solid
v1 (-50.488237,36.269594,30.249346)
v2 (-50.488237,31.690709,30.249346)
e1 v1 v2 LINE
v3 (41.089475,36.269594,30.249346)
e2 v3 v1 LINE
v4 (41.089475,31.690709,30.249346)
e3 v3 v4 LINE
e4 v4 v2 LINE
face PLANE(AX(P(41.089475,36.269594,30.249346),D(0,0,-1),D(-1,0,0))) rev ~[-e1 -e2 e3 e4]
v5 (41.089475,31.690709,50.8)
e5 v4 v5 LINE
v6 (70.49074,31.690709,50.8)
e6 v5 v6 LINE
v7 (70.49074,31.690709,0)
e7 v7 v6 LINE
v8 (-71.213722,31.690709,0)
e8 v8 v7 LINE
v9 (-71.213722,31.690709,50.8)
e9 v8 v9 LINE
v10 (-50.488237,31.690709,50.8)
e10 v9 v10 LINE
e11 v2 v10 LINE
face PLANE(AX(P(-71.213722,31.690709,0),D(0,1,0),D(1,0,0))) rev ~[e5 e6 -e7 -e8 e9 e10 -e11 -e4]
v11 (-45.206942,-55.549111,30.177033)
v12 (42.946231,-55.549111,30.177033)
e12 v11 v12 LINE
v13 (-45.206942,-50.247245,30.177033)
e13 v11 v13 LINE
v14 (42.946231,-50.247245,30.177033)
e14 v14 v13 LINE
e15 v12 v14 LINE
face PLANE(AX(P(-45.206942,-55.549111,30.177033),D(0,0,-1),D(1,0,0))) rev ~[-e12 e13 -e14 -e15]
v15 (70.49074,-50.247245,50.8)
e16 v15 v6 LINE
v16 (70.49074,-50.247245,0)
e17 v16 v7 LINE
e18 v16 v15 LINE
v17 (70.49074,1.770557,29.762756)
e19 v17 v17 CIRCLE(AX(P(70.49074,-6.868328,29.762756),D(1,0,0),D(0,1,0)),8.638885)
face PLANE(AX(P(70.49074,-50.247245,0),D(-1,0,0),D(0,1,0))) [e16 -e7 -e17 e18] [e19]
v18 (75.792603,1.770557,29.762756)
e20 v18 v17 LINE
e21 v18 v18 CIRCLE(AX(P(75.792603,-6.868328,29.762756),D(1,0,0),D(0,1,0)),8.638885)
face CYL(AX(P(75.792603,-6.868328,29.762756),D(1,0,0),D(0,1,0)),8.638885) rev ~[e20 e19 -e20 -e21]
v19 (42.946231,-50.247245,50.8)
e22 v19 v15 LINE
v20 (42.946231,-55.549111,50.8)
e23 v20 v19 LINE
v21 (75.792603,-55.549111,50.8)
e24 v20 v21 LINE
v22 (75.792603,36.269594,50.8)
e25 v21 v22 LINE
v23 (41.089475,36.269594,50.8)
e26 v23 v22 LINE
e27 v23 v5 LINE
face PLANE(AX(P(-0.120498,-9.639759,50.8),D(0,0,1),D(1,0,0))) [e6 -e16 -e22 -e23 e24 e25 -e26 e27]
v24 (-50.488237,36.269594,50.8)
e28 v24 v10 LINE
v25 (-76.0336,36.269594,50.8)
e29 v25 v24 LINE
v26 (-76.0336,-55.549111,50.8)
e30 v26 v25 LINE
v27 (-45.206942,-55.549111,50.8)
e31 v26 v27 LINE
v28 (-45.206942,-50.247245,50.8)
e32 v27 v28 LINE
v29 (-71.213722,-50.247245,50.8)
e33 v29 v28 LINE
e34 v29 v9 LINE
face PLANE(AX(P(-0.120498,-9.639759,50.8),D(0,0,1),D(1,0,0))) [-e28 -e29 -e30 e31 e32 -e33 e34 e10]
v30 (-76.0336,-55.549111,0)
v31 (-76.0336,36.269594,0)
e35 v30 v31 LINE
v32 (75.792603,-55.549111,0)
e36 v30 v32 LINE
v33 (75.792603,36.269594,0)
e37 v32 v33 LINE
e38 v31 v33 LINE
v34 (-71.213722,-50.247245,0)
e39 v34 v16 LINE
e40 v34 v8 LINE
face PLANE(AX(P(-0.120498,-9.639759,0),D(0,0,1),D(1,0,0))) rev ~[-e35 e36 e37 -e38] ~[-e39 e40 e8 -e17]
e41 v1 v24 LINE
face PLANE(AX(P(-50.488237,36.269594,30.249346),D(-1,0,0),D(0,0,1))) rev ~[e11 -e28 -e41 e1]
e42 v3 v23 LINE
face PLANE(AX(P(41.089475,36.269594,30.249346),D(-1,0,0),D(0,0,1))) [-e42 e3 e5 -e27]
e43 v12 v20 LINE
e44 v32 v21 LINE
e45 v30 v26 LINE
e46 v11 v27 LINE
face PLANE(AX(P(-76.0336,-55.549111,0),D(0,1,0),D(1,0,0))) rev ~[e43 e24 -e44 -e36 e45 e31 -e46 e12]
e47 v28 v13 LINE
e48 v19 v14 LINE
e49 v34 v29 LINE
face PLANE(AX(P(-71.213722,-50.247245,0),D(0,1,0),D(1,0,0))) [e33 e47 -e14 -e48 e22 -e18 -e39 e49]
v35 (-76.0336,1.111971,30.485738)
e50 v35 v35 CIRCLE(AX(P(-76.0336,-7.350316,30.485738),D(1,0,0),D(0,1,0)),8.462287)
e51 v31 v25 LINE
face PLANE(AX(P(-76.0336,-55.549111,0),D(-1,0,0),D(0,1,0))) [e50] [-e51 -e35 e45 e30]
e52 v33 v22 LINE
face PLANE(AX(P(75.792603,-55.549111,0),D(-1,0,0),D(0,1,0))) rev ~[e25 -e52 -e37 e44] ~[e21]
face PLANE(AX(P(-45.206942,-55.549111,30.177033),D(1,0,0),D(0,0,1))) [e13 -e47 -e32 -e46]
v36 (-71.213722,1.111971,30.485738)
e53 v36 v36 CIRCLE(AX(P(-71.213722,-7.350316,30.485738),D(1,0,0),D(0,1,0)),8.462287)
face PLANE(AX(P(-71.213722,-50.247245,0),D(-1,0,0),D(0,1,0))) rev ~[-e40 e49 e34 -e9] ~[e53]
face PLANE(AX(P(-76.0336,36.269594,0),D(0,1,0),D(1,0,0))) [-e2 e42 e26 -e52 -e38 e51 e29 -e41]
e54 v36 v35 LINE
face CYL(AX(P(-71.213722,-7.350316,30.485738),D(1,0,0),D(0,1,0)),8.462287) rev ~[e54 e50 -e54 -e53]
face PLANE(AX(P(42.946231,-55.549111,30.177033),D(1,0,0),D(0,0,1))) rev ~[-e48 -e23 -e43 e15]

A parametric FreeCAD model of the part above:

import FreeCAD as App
import Part
import Sketcher
Q = App.Units.Quantity

doc = App.newDocument("Part")
params = doc.addObject("Spreadsheet::Sheet", "Params")
for row, (alias, value) in enumerate([
    ("pad1_length", "2 in"),
    ("pocket1_length", "1 in"),
    ("pocket2_length", "1 in"),
    ("pocket3_length", "1 in"),
    ("pocket4_length", "1 in"),
], start=1):
    params.set(f"A{row}", alias)
    params.set(f"B{row}", "=" + value)
    params.setAlias(f"B{row}", alias)

body = doc.addObject("PartDesign::Body", "Body")

sketch1 = body.newObject("Sketcher::SketchObject", "Sketch")
sketch1.AttachmentSupport = (doc.getObject("XY_Plane"), [""])
sketch1.MapMode = "FlatFace"
sketch1.addGeometry(Part.LineSegment(App.Vector(-76, 36, 0), App.Vector(-76, -56, 0)), False)
sketch1.addGeometry(Part.LineSegment(App.Vector(-76, -56, 0), App.Vector(76, -56, 0)), False)
sketch1.addGeometry(Part.LineSegment(App.Vector(76, -56, 0), App.Vector(76, 36, 0)), False)
sketch1.addGeometry(Part.LineSegment(App.Vector(76, 36, 0), App.Vector(-76, 36, 0)), False)
sketch1.addGeometry(Part.LineSegment(App.Vector(70, -50, 0), App.Vector(-71, -50, 0)), False)
sketch1.addGeometry(Part.LineSegment(App.Vector(-71, -50, 0), App.Vector(-71, 32, 0)), False)
sketch1.addGeometry(Part.LineSegment(App.Vector(-71, 32, 0), App.Vector(70, 32, 0)), False)
sketch1.addGeometry(Part.LineSegment(App.Vector(70, 32, 0), App.Vector(70, -50, 0)), False)
sketch1.addConstraint(Sketcher.Constraint("Coincident", 0, 2, 1, 1))
sketch1.addConstraint(Sketcher.Constraint("Coincident", 1, 2, 2, 1))
sketch1.addConstraint(Sketcher.Constraint("Coincident", 2, 2, 3, 1))
sketch1.addConstraint(Sketcher.Constraint("Coincident", 3, 2, 0, 1))
sketch1.addConstraint(Sketcher.Constraint("Coincident", 4, 2, 5, 1))
sketch1.addConstraint(Sketcher.Constraint("Coincident", 5, 2, 6, 1))
sketch1.addConstraint(Sketcher.Constraint("Coincident", 6, 2, 7, 1))
sketch1.addConstraint(Sketcher.Constraint("Coincident", 7, 2, 4, 1))
sketch1.addConstraint(Sketcher.Constraint("Vertical", 0))
sketch1.addConstraint(Sketcher.Constraint("Horizontal", 1))
sketch1.addConstraint(Sketcher.Constraint("Vertical", 2))
sketch1.addConstraint(Sketcher.Constraint("Horizontal", 3))
sketch1.addConstraint(Sketcher.Constraint("Horizontal", 4))
sketch1.addConstraint(Sketcher.Constraint("Vertical", 5))
sketch1.addConstraint(Sketcher.Constraint("Horizontal", 6))
sketch1.addConstraint(Sketcher.Constraint("Vertical", 7))
sketch1.addConstraint(Sketcher.Constraint("DistanceX", 0, 2, -1, 1, Q("76.0336 mm")))
sketch1.addConstraint(Sketcher.Constraint("DistanceX", 1, 1, 1, 2, Q("151.826203 mm")))
sketch1.addConstraint(Sketcher.Constraint("DistanceX", 4, 2, 4, 1, Q("141.704462 mm")))
sketch1.addConstraint(Sketcher.Constraint("DistanceY", 0, 2, 0, 1, Q("91.818705 mm")))
sketch1.addConstraint(Sketcher.Constraint("DistanceY", 5, 1, 5, 2, Q("81.937954 mm")))
sketch1.addConstraint(Sketcher.Constraint("DistanceY", 0, 2, -1, 1, Q("55.549111 mm")))
sketch1.addConstraint(Sketcher.Constraint("DistanceY", -1, 1, 5, 2, Q("31.690709 mm")))
sketch1.addConstraint(Sketcher.Constraint("DistanceX", -1, 1, 6, 2, Q("70.49074 mm")))
pad1 = body.newObject("PartDesign::Pad", "Pad")
pad1.Profile = sketch1
pad1.setExpression("Length", "Params.pad1_length")

sketch2 = body.newObject("Sketcher::SketchObject", "Sketch001")
sketch2.AttachmentSupport = (doc.getObject("XZ_Plane"), [""])
sketch2.MapMode = "FlatFace"
sketch2.AttachmentOffset = App.Placement(App.Vector(0, 0, 55.549111), App.Rotation())
sketch2.addGeometry(Part.LineSegment(App.Vector(-45, 51, 0), App.Vector(-45, 30, 0)), False)
sketch2.addGeometry(Part.LineSegment(App.Vector(-45, 30, 0), App.Vector(43, 30, 0)), False)
sketch2.addGeometry(Part.LineSegment(App.Vector(43, 30, 0), App.Vector(43, 51, 0)), False)
sketch2.addGeometry(Part.LineSegment(App.Vector(43, 51, 0), App.Vector(-45, 51, 0)), False)
sketch2.addConstraint(Sketcher.Constraint("Coincident", 0, 2, 1, 1))
sketch2.addConstraint(Sketcher.Constraint("Coincident", 1, 2, 2, 1))
sketch2.addConstraint(Sketcher.Constraint("Coincident", 2, 2, 3, 1))
sketch2.addConstraint(Sketcher.Constraint("Coincident", 3, 2, 0, 1))
sketch2.addConstraint(Sketcher.Constraint("Vertical", 0))
sketch2.addConstraint(Sketcher.Constraint("Horizontal", 1))
sketch2.addConstraint(Sketcher.Constraint("Vertical", 2))
sketch2.addConstraint(Sketcher.Constraint("Horizontal", 3))
sketch2.addConstraint(Sketcher.Constraint("DistanceY", -1, 1, 2, 2, Q("2 in")))
sketch2.addConstraint(Sketcher.Constraint("DistanceX", 1, 1, 1, 2, Q("88.153172 mm")))
sketch2.addConstraint(Sketcher.Constraint("DistanceY", 0, 2, 0, 1, Q("20.622967 mm")))
sketch2.addConstraint(Sketcher.Constraint("DistanceX", 0, 2, -1, 1, Q("45.206942 mm")))
pocket1 = body.newObject("PartDesign::Pocket", "Pocket")
pocket1.Profile = sketch2
pocket1.setExpression("Length", "Params.pocket1_length")

sketch3 = body.newObject("Sketcher::SketchObject", "Sketch002")
sketch3.AttachmentSupport = (doc.getObject("YZ_Plane"), [""])
sketch3.MapMode = "FlatFace"
sketch3.AttachmentOffset = App.Placement(App.Vector(0, 0, 75.792603), App.Rotation())
sketch3.addGeometry(Part.Circle(App.Vector(-7, 30, 0), App.Vector(0, 0, 1), 9), False)
sketch3.addConstraint(Sketcher.Constraint("Diameter", 0, Q("17.277771 mm")))
sketch3.addConstraint(Sketcher.Constraint("DistanceX", 0, 3, -1, 1, Q("6.868328 mm")))
sketch3.addConstraint(Sketcher.Constraint("DistanceY", -1, 1, 0, 3, Q("29.762756 mm")))
pocket2 = body.newObject("PartDesign::Pocket", "Pocket001")
pocket2.Profile = sketch3
pocket2.setExpression("Length", "Params.pocket2_length")

sketch4 = body.newObject("Sketcher::SketchObject", "Sketch003")
sketch4.AttachmentSupport = (doc.getObject("YZ_Plane"), [""])
sketch4.MapMode = "FlatFace"
sketch4.AttachmentOffset = App.Placement(App.Vector(0, 0, -71.213722), App.Rotation())
sketch4.addGeometry(Part.Circle(App.Vector(-7, 30, 0), App.Vector(0, 0, 1), 8), False)
sketch4.addConstraint(Sketcher.Constraint("Diameter", 0, Q("16.924574 mm")))
sketch4.addConstraint(Sketcher.Constraint("DistanceY", -1, 1, 0, 3, Q("30.485738 mm")))
sketch4.addConstraint(Sketcher.Constraint("DistanceX", 0, 3, -1, 1, Q("7.350316 mm")))
pocket3 = body.newObject("PartDesign::Pocket", "Pocket002")
pocket3.Profile = sketch4
pocket3.setExpression("Length", "Params.pocket3_length")

sketch5 = body.newObject("Sketcher::SketchObject", "Sketch004")
sketch5.AttachmentSupport = (doc.getObject("XZ_Plane"), [""])
sketch5.MapMode = "FlatFace"
sketch5.AttachmentOffset = App.Placement(App.Vector(0, 0, -36.269594), App.Rotation())
sketch5.addGeometry(Part.LineSegment(App.Vector(41, 51, 0), App.Vector(41, 30, 0)), False)
sketch5.addGeometry(Part.LineSegment(App.Vector(41, 30, 0), App.Vector(-50, 30, 0)), False)
sketch5.addGeometry(Part.LineSegment(App.Vector(-50, 30, 0), App.Vector(-50, 51, 0)), False)
sketch5.addGeometry(Part.LineSegment(App.Vector(-50, 51, 0), App.Vector(41, 51, 0)), False)
sketch5.addConstraint(Sketcher.Constraint("Coincident", 0, 2, 1, 1))
sketch5.addConstraint(Sketcher.Constraint("Coincident", 1, 2, 2, 1))
sketch5.addConstraint(Sketcher.Constraint("Coincident", 2, 2, 3, 1))
sketch5.addConstraint(Sketcher.Constraint("Coincident", 3, 2, 0, 1))
sketch5.addConstraint(Sketcher.Constraint("Vertical", 0))
sketch5.addConstraint(Sketcher.Constraint("Horizontal", 1))
sketch5.addConstraint(Sketcher.Constraint("Vertical", 2))
sketch5.addConstraint(Sketcher.Constraint("Horizontal", 3))
sketch5.addConstraint(Sketcher.Constraint("DistanceY", -1, 1, 2, 2, Q("2 in")))
sketch5.addConstraint(Sketcher.Constraint("DistanceX", 1, 2, 1, 1, Q("91.577712 mm")))
sketch5.addConstraint(Sketcher.Constraint("DistanceY", 0, 2, 0, 1, Q("20.550654 mm")))
sketch5.addConstraint(Sketcher.Constraint("DistanceX", -1, 1, 0, 2, Q("41.089475 mm")))
pocket4 = body.newObject("PartDesign::Pocket", "Pocket003")
pocket4.Profile = sketch5
pocket4.setExpression("Length", "Params.pocket4_length")
pocket4.Reversed = True

doc.recompute()
